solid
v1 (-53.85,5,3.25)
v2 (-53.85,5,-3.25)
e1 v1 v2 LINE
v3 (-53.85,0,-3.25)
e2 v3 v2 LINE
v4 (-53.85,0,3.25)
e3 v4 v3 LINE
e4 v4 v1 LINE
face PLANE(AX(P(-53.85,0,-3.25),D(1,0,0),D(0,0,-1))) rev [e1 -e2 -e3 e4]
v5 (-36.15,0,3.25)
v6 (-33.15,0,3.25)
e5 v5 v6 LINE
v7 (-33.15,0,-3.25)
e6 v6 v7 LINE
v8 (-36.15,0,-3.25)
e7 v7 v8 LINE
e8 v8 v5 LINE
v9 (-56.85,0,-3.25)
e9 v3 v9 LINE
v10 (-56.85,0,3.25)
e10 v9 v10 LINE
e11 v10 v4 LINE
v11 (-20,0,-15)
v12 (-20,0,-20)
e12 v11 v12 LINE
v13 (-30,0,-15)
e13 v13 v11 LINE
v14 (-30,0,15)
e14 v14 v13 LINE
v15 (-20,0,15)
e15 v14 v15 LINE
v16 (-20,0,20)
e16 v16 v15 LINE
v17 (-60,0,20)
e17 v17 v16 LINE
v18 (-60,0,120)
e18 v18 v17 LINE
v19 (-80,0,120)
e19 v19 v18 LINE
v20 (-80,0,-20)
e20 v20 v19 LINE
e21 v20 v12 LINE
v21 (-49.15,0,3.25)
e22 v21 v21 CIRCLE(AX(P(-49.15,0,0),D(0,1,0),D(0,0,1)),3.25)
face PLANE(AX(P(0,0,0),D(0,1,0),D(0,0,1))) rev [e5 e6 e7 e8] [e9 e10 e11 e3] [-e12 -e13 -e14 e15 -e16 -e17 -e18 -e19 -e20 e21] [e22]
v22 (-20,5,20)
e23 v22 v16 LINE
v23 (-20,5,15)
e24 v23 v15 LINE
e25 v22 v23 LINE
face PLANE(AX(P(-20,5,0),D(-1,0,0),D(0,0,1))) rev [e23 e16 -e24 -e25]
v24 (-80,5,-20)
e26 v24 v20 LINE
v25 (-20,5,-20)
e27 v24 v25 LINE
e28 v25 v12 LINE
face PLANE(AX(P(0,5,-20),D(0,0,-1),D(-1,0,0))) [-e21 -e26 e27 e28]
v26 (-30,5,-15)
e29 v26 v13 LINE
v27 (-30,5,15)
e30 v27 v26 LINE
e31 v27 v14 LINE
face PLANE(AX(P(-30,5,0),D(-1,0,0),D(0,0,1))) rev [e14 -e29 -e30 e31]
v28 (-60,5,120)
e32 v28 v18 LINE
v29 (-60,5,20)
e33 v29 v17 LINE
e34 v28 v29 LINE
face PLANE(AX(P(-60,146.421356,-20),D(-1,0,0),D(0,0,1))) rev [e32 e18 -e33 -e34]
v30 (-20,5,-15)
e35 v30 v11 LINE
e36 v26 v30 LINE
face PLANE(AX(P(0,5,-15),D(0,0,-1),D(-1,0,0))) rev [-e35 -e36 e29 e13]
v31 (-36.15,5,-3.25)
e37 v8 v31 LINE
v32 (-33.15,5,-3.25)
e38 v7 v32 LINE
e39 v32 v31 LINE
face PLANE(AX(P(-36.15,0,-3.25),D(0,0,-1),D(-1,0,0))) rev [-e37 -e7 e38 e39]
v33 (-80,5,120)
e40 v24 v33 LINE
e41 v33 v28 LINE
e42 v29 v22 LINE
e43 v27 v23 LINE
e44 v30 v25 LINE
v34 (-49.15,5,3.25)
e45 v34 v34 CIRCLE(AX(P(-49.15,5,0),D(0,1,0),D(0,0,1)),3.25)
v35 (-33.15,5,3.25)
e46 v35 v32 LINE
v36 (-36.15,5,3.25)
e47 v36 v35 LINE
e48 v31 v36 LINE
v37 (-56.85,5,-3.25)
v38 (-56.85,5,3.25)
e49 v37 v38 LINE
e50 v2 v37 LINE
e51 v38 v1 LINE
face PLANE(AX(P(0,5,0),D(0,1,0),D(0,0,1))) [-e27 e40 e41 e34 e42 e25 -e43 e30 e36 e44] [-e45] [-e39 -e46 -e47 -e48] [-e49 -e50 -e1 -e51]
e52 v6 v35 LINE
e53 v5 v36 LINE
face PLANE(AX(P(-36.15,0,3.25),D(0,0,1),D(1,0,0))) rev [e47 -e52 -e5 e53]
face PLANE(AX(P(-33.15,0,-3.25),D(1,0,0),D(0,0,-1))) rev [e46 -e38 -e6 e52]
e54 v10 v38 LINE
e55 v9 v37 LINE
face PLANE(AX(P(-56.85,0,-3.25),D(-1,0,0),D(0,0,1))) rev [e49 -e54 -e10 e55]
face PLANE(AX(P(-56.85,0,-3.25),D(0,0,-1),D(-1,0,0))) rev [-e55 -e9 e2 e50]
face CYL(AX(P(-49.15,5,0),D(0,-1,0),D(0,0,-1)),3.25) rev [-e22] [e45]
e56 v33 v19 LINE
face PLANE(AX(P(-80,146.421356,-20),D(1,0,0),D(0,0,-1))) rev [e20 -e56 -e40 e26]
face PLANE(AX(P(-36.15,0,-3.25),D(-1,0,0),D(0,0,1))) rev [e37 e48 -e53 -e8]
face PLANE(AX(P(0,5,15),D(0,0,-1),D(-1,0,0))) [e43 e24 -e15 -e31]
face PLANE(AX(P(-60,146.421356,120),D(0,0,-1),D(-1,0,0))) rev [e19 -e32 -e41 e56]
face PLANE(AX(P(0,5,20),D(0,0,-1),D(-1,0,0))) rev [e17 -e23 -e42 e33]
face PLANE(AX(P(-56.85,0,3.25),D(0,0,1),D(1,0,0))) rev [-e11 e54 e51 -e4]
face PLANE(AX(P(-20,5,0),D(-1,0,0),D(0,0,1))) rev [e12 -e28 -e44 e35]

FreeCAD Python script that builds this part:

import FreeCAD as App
import Part
import Sketcher
Q = App.Units.Quantity

doc = App.newDocument("Part")
body = doc.addObject("PartDesign::Body", "Body")

# Sketch on XZ plane
sketch1 = body.newObject("Sketcher::SketchObject", "Sketch")
sketch1.AttachmentSupport = (doc.getObject("XZ_Plane"), [""])
sketch1.MapMode = "FlatFace"
sketch1.addGeometry([
    Part.LineSegment(App.Vector(-20, 15, 0), App.Vector(-30, 15, 0)),  # 0
    Part.LineSegment(App.Vector(-30, 15, 0), App.Vector(-30, -15, 0)),  # 1
    Part.LineSegment(App.Vector(-30, -15, 0), App.Vector(-20, -15, 0)),  # 2
    Part.LineSegment(App.Vector(-20, -15, 0), App.Vector(-20, -20, 0)),  # 3
    Part.LineSegment(App.Vector(-20, -20, 0), App.Vector(-60, -20, 0)),  # 4
    Part.LineSegment(App.Vector(-60, -20, 0), App.Vector(-60, 20, 0)),  # 5
    Part.LineSegment(App.Vector(-60, 20, 0), App.Vector(-20, 20, 0)),  # 6
    Part.LineSegment(App.Vector(-20, 20, 0), App.Vector(-20, 15, 0)),  # 7
    Part.Circle(App.Vector(-49.1, 0, 0), App.Vector(0, 0, 1), 3.2),  # 8
], False)
sketch1.addConstraint([
    Sketcher.Constraint("Coincident", 0, 2, 1, 1),
    Sketcher.Constraint("Coincident", 1, 2, 2, 1),
    Sketcher.Constraint("Coincident", 2, 2, 3, 1),
    Sketcher.Constraint("Coincident", 3, 2, 4, 1),
    Sketcher.Constraint("Coincident", 4, 2, 5, 1),
    Sketcher.Constraint("Coincident", 5, 2, 6, 1),
    Sketcher.Constraint("Coincident", 6, 2, 7, 1),
    Sketcher.Constraint("Coincident", 7, 2, 0, 1),
    Sketcher.Constraint("Horizontal", 0),
    Sketcher.Constraint("Vertical", 1),
    Sketcher.Constraint("Horizontal", 2),
    Sketcher.Constraint("Vertical", 3),
    Sketcher.Constraint("Horizontal", 4),
    Sketcher.Constraint("Vertical", 5),
    Sketcher.Constraint("Horizontal", 6),
    Sketcher.Constraint("Vertical", 7),
    Sketcher.Constraint("Symmetric", 3, 2, 6, 2, -1),
    Sketcher.Constraint("PointOnObject", 8, 3, -1),
    Sketcher.Constraint("Equal", 6, 5),
    Sketcher.Constraint("Equal", 3, 7),
    Sketcher.Constraint("Diameter", 8, Q("6.5 mm")),
    Sketcher.Constraint("DistanceX", 0, 2, 0, 1, Q("10 mm")),
    Sketcher.Constraint("DistanceX", 4, 2, 4, 1, Q("40 mm")),
    Sketcher.Constraint("DistanceY", 1, 2, 1, 1, Q("30 mm")),
    Sketcher.Constraint("DistanceX", 0, 2, -1, 1, Q("30 mm")),
    Sketcher.Constraint("DistanceX", 8, 3, -1, 1, Q("49.15 mm")),
])
pad1 = body.newObject("PartDesign::Pad", "Pad")
pad1.Profile = sketch1
pad1.Length = 5
pad1.Reversed = True

# Sketch on XZ plane
sketch2 = body.newObject("Sketcher::SketchObject", "Sketch001")
sketch2.AttachmentSupport = (doc.getObject("XZ_Plane"), [""])
sketch2.MapMode = "FlatFace"
sketch2.addGeometry([
    Part.LineSegment(App.Vector(-80, -20, 0), App.Vector(-80, 120, 0)),
    Part.LineSegment(App.Vector(-80, 120, 0), App.Vector(-60, 120, 0)),
    Part.LineSegment(App.Vector(-60, 120, 0), App.Vector(-60, -20, 0)),
    Part.LineSegment(App.Vector(-60, -20, 0), App.Vector(-80, -20, 0)),
], False)
sketch2.addConstraint([
    Sketcher.Constraint("Coincident", 0, 2, 1, 1),
    Sketcher.Constraint("Coincident", 1, 2, 2, 1),
    Sketcher.Constraint("Coincident", 2, 2, 3, 1),
    Sketcher.Constraint("Coincident", 3, 2, 0, 1),
    Sketcher.Constraint("Vertical", 0),
    Sketcher.Constraint("Horizontal", 1),
    Sketcher.Constraint("Vertical", 2),
    Sketcher.Constraint("Horizontal", 3),
    Sketcher.Constraint("DistanceX", 1, 1, 1, 2, Q("20 mm")),
    Sketcher.Constraint("DistanceY", 0, 1, 0, 2, Q("140 mm")),
    Sketcher.Constraint("DistanceX", 0, 2, -1, 1, Q("80 mm")),
    Sketcher.Constraint("DistanceY", -1, 1, 0, 2, Q("120 mm")),
])
pad2 = body.newObject("PartDesign::Pad", "Pad001")
pad2.Profile = sketch2
pad2.Length = 5
pad2.Reversed = True

# Sketch on XZ plane
sketch3 = body.newObject("Sketcher::SketchObject", "Sketch002")
sketch3.AttachmentSupport = (doc.getObject("XZ_Plane"), [""])
sketch3.MapMode = "FlatFace"
sketch3.AttachmentOffset = App.Placement(App.Vector(0, 0, -5), App.Rotation())
sketch3.addGeometry([
    Part.LineSegment(App.Vector(-36.1, -3.2, 0), App.Vector(-36.1, 3.2, 0)),  # 0
    Part.LineSegment(App.Vector(-36.1, 3.2, 0), App.Vector(-33.1, 3.2, 0)),  # 1
    Part.LineSegment(App.Vector(-33.1, 3.2, 0), App.Vector(-33.1, -3.2, 0)),  # 2
    Part.LineSegment(App.Vector(-33.1, -3.2, 0), App.Vector(-36.1, -3.2, 0)),  # 3
    Part.LineSegment(App.Vector(-56.9, -3.2, 0), App.Vector(-56.9, 3.2, 0)),  # 4
    Part.LineSegment(App.Vector(-56.9, 3.2, 0), App.Vector(-53.9, 3.2, 0)),  # 5
    Part.LineSegment(App.Vector(-53.9, 3.2, 0), App.Vector(-53.9, -3.2, 0)),  # 6
    Part.LineSegment(App.Vector(-53.9, -3.2, 0), App.Vector(-56.9, -3.2, 0)),  # 7
], False)
sketch3.addConstraint([
    Sketcher.Constraint("Coincident", 0, 2, 1, 1),
    Sketcher.Constraint("Coincident", 1, 2, 2, 1),
    Sketcher.Constraint("Coincident", 2, 2, 3, 1),
    Sketcher.Constraint("Coincident", 3, 2, 0, 1),
    Sketcher.Constraint("Coincident", 4, 2, 5, 1),
    Sketcher.Constraint("Coincident", 5, 2, 6, 1),
    Sketcher.Constraint("Coincident", 6, 2, 7, 1),
    Sketcher.Constraint("Coincident", 7, 2, 4, 1),
    Sketcher.Constraint("Vertical", 0),
    Sketcher.Constraint("Horizontal", 1),
    Sketcher.Constraint("Vertical", 2),
    Sketcher.Constraint("Horizontal", 3),
    Sketcher.Constraint("Vertical", 4),
    Sketcher.Constraint("Horizontal", 5),
    Sketcher.Constraint("Vertical", 6),
    Sketcher.Constraint("Horizontal", 7),
    Sketcher.Constraint("Horizontal", 1, 2, 4, 2),
    Sketcher.Constraint("Horizontal", 3, 2, 6, 2),
    Sketcher.Constraint("Equal", 3, 5),
    Sketcher.Constraint("DistanceX", 1, 1, 1, 2, Q("3 mm")),
    Sketcher.Constraint("DistanceY", 0, 1, 0, 2, Q("6.5 mm")),
    Sketcher.Constraint("DistanceX", 4, 2, 0, 2, Q("20.7 mm")),
    Sketcher.Constraint("DistanceX", 0, 2, -1, 1, Q("36.15 mm")),
    Sketcher.Constraint("DistanceY", -1, 1, 0, 2, Q("3.25 mm")),
])
pocket1 = body.newObject("PartDesign::Pocket", "Pocket")
pocket1.Profile = sketch3
pocket1.Type = "ThroughAll"
pocket1.Midplane = True

doc.recompute()
